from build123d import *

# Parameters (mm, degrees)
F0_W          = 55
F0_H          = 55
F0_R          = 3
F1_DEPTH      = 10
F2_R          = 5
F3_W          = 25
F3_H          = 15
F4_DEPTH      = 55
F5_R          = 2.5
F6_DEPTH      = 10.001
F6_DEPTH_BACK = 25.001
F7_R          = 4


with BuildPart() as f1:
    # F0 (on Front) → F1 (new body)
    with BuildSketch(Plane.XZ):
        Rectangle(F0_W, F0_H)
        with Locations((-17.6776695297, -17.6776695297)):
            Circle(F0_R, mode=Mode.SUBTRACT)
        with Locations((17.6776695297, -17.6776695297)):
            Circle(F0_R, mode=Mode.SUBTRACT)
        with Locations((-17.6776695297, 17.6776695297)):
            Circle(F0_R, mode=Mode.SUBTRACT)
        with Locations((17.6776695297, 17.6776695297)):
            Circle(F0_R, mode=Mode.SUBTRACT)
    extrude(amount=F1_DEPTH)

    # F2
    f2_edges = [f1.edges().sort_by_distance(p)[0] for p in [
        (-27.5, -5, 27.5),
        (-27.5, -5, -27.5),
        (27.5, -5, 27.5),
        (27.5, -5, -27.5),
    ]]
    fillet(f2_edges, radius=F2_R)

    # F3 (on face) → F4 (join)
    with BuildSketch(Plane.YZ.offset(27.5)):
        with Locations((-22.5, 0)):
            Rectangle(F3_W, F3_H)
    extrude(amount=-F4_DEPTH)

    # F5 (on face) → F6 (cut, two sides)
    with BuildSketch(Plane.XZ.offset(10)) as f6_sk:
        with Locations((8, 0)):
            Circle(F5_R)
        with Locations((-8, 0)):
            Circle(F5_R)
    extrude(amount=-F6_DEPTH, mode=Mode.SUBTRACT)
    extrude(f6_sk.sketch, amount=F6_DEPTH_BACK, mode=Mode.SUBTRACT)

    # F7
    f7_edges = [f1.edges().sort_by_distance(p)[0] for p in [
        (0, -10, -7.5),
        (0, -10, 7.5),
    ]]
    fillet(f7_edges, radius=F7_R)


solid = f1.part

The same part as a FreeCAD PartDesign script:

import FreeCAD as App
import Part
import Sketcher
from FreeCAD import Vector


def edges_at(feature, points):
    """Names of the edges that pass closest to the given points."""
    edges = feature.Shape.Edges
    near = lambda p: min(range(len(edges)), key=lambda i: edges[i].distToShape(Part.Vertex(*p))[0])
    return sorted({f"Edge{near(p) + 1}" for p in points})

doc = App.newDocument("Part")
body = doc.addObject("PartDesign::Body", "Body")

sketch1 = body.newObject("Sketcher::SketchObject", "Sketch")
sketch1.AttachmentSupport = (doc.getObject("XZ_Plane"), [""])
sketch1.MapMode = "FlatFace"
sketch1.addGeometry([
    Part.LineSegment(Vector(-27.5, 27.5, 0), Vector(-27.5, -27.5, 0)),
    Part.LineSegment(Vector(-27.5, -27.5, 0), Vector(27.5, -27.5, 0)),
    Part.LineSegment(Vector(27.5, -27.5, 0), Vector(27.5, 27.5, 0)),
    Part.LineSegment(Vector(27.5, 27.5, 0), Vector(-27.5, 27.5, 0)),
    Part.Circle(Vector(-17.67767, -17.67767, 0), Vector(0, 0, 1), 3),
    Part.Circle(Vector(17.67767, -17.67767, 0), Vector(0, 0, 1), 3),
    Part.Circle(Vector(-17.67767, 17.67767, 0), Vector(0, 0, 1), 3),
    Part.Circle(Vector(17.67767, 17.67767, 0), Vector(0, 0, 1), 3),
], False)
sketch1.addConstraint([
    Sketcher.Constraint("Coincident", 0, 2, 1, 1),
    Sketcher.Constraint("Coincident", 1, 2, 2, 1),
    Sketcher.Constraint("Coincident", 2, 2, 3, 1),
    Sketcher.Constraint("Coincident", 3, 2, 0, 1),
    Sketcher.Constraint("Vertical", 0),
    Sketcher.Constraint("Horizontal", 1),
    Sketcher.Constraint("Vertical", 2),
    Sketcher.Constraint("Horizontal", 3),
    Sketcher.Constraint("Equal", 4, 5),
    Sketcher.Constraint("Equal", 5, 6),
    Sketcher.Constraint("Equal", 6, 7),
    Sketcher.Constraint("Symmetric", 5, 3, 6, 3, -1, 1),
    Sketcher.Constraint("Symmetric", 4, 3, 7, 3, -1, 1),
    Sketcher.Constraint("Symmetric", 0, 2, 2, 2, -1, 1),
    Sketcher.Constraint("Symmetric", 4, 3, 5, 3, -2),
    Sketcher.Constraint("Equal", 3, 0),
    Sketcher.Constraint("Diameter", 4, 6.0),
    Sketcher.Constraint("DistanceX", 1, 1, 1, 2, 55.0),
    Sketcher.Constraint("DistanceX", 4, 3, -1, 1, 17.67767),
    Sketcher.Constraint("DistanceY", 4, 3, -1, 1, 17.67767),
])
pad1 = body.newObject("PartDesign::Pad", "Pad")
pad1.Profile = sketch1
pad1.Length = 10
doc.recompute()

fillet = body.newObject("PartDesign::Fillet", "Fillet")
fillet.Base = (pad1, edges_at(pad1, [
    (-27.5, -5, 27.5),
    (-27.5, -5, -27.5),
    (27.5, -5, 27.5),
    (27.5, -5, -27.5),
]))
fillet.Radius = 5

sketch2 = body.newObject("Sketcher::SketchObject", "Sketch001")
sketch2.AttachmentSupport = (doc.getObject("YZ_Plane"), [""])
sketch2.MapMode = "FlatFace"
sketch2.AttachmentOffset = App.Placement(Vector(0, 0, 27.5), App.Rotation())
sketch2.addGeometry([
    Part.LineSegment(Vector(-35, 7.5, 0), Vector(-35, -7.5, 0)),
    Part.LineSegment(Vector(-35, -7.5, 0), Vector(-10, -7.5, 0)),
    Part.LineSegment(Vector(-10, -7.5, 0), Vector(-10, 7.5, 0)),
    Part.LineSegment(Vector(-10, 7.5, 0), Vector(-35, 7.5, 0)),
], False)
sketch2.addConstraint([
    Sketcher.Constraint("Coincident", 0, 2, 1, 1),
    Sketcher.Constraint("Coincident", 1, 2, 2, 1),
    Sketcher.Constraint("Coincident", 2, 2, 3, 1),
    Sketcher.Constraint("Coincident", 3, 2, 0, 1),
    Sketcher.Constraint("Vertical", 0),
    Sketcher.Constraint("Horizontal", 1),
    Sketcher.Constraint("Vertical", 2),
    Sketcher.Constraint("Horizontal", 3),
    Sketcher.Constraint("DistanceX", 1, 1, 1, 2, 25.0),
    Sketcher.Constraint("DistanceY", 0, 2, 0, 1, 15.0),
    Sketcher.Constraint("DistanceX", 0, 2, -1, 1, 35.0),
    Sketcher.Constraint("DistanceY", 0, 2, -1, 1, 7.5),
])
pad2 = body.newObject("PartDesign::Pad", "Pad001")
pad2.Profile = sketch2
pad2.Length = 55
pad2.Reversed = True

sketch3 = body.newObject("Sketcher::SketchObject", "Sketch002")
sketch3.AttachmentSupport = (doc.getObject("XZ_Plane"), [""])
sketch3.MapMode = "FlatFace"
sketch3.AttachmentOffset = App.Placement(Vector(0, 0, 10), App.Rotation())
sketch3.addGeometry([
    Part.Circle(Vector(8, 0, 0), Vector(0, 0, 1), 2.5),
    Part.Circle(Vector(-8, 0, 0), Vector(0, 0, 1), 2.5),
], False)
sketch3.addConstraint([
    Sketcher.Constraint("Equal", 0, 1),
    Sketcher.Constraint("Symmetric", 0, 3, 1, 3, -1, 1),
    Sketcher.Constraint("PointOnObject", 0, 3, -1),
    Sketcher.Constraint("Diameter", 0, 5.0),
    Sketcher.Constraint("DistanceX", -1, 1, 0, 3, 8.0),
])
pocket1 = body.newObject("PartDesign::Pocket", "Pocket")
pocket1.Profile = sketch3
pocket1.Type = "ThroughAll"
pocket1.Midplane = True
doc.recompute()

fillet2 = body.newObject("PartDesign::Fillet", "Fillet001")
fillet2.Base = (pocket1, edges_at(pocket1, [(0, -10, -7.5), (0, -10, 7.5)]))
fillet2.Radius = 4

doc.recompute()
